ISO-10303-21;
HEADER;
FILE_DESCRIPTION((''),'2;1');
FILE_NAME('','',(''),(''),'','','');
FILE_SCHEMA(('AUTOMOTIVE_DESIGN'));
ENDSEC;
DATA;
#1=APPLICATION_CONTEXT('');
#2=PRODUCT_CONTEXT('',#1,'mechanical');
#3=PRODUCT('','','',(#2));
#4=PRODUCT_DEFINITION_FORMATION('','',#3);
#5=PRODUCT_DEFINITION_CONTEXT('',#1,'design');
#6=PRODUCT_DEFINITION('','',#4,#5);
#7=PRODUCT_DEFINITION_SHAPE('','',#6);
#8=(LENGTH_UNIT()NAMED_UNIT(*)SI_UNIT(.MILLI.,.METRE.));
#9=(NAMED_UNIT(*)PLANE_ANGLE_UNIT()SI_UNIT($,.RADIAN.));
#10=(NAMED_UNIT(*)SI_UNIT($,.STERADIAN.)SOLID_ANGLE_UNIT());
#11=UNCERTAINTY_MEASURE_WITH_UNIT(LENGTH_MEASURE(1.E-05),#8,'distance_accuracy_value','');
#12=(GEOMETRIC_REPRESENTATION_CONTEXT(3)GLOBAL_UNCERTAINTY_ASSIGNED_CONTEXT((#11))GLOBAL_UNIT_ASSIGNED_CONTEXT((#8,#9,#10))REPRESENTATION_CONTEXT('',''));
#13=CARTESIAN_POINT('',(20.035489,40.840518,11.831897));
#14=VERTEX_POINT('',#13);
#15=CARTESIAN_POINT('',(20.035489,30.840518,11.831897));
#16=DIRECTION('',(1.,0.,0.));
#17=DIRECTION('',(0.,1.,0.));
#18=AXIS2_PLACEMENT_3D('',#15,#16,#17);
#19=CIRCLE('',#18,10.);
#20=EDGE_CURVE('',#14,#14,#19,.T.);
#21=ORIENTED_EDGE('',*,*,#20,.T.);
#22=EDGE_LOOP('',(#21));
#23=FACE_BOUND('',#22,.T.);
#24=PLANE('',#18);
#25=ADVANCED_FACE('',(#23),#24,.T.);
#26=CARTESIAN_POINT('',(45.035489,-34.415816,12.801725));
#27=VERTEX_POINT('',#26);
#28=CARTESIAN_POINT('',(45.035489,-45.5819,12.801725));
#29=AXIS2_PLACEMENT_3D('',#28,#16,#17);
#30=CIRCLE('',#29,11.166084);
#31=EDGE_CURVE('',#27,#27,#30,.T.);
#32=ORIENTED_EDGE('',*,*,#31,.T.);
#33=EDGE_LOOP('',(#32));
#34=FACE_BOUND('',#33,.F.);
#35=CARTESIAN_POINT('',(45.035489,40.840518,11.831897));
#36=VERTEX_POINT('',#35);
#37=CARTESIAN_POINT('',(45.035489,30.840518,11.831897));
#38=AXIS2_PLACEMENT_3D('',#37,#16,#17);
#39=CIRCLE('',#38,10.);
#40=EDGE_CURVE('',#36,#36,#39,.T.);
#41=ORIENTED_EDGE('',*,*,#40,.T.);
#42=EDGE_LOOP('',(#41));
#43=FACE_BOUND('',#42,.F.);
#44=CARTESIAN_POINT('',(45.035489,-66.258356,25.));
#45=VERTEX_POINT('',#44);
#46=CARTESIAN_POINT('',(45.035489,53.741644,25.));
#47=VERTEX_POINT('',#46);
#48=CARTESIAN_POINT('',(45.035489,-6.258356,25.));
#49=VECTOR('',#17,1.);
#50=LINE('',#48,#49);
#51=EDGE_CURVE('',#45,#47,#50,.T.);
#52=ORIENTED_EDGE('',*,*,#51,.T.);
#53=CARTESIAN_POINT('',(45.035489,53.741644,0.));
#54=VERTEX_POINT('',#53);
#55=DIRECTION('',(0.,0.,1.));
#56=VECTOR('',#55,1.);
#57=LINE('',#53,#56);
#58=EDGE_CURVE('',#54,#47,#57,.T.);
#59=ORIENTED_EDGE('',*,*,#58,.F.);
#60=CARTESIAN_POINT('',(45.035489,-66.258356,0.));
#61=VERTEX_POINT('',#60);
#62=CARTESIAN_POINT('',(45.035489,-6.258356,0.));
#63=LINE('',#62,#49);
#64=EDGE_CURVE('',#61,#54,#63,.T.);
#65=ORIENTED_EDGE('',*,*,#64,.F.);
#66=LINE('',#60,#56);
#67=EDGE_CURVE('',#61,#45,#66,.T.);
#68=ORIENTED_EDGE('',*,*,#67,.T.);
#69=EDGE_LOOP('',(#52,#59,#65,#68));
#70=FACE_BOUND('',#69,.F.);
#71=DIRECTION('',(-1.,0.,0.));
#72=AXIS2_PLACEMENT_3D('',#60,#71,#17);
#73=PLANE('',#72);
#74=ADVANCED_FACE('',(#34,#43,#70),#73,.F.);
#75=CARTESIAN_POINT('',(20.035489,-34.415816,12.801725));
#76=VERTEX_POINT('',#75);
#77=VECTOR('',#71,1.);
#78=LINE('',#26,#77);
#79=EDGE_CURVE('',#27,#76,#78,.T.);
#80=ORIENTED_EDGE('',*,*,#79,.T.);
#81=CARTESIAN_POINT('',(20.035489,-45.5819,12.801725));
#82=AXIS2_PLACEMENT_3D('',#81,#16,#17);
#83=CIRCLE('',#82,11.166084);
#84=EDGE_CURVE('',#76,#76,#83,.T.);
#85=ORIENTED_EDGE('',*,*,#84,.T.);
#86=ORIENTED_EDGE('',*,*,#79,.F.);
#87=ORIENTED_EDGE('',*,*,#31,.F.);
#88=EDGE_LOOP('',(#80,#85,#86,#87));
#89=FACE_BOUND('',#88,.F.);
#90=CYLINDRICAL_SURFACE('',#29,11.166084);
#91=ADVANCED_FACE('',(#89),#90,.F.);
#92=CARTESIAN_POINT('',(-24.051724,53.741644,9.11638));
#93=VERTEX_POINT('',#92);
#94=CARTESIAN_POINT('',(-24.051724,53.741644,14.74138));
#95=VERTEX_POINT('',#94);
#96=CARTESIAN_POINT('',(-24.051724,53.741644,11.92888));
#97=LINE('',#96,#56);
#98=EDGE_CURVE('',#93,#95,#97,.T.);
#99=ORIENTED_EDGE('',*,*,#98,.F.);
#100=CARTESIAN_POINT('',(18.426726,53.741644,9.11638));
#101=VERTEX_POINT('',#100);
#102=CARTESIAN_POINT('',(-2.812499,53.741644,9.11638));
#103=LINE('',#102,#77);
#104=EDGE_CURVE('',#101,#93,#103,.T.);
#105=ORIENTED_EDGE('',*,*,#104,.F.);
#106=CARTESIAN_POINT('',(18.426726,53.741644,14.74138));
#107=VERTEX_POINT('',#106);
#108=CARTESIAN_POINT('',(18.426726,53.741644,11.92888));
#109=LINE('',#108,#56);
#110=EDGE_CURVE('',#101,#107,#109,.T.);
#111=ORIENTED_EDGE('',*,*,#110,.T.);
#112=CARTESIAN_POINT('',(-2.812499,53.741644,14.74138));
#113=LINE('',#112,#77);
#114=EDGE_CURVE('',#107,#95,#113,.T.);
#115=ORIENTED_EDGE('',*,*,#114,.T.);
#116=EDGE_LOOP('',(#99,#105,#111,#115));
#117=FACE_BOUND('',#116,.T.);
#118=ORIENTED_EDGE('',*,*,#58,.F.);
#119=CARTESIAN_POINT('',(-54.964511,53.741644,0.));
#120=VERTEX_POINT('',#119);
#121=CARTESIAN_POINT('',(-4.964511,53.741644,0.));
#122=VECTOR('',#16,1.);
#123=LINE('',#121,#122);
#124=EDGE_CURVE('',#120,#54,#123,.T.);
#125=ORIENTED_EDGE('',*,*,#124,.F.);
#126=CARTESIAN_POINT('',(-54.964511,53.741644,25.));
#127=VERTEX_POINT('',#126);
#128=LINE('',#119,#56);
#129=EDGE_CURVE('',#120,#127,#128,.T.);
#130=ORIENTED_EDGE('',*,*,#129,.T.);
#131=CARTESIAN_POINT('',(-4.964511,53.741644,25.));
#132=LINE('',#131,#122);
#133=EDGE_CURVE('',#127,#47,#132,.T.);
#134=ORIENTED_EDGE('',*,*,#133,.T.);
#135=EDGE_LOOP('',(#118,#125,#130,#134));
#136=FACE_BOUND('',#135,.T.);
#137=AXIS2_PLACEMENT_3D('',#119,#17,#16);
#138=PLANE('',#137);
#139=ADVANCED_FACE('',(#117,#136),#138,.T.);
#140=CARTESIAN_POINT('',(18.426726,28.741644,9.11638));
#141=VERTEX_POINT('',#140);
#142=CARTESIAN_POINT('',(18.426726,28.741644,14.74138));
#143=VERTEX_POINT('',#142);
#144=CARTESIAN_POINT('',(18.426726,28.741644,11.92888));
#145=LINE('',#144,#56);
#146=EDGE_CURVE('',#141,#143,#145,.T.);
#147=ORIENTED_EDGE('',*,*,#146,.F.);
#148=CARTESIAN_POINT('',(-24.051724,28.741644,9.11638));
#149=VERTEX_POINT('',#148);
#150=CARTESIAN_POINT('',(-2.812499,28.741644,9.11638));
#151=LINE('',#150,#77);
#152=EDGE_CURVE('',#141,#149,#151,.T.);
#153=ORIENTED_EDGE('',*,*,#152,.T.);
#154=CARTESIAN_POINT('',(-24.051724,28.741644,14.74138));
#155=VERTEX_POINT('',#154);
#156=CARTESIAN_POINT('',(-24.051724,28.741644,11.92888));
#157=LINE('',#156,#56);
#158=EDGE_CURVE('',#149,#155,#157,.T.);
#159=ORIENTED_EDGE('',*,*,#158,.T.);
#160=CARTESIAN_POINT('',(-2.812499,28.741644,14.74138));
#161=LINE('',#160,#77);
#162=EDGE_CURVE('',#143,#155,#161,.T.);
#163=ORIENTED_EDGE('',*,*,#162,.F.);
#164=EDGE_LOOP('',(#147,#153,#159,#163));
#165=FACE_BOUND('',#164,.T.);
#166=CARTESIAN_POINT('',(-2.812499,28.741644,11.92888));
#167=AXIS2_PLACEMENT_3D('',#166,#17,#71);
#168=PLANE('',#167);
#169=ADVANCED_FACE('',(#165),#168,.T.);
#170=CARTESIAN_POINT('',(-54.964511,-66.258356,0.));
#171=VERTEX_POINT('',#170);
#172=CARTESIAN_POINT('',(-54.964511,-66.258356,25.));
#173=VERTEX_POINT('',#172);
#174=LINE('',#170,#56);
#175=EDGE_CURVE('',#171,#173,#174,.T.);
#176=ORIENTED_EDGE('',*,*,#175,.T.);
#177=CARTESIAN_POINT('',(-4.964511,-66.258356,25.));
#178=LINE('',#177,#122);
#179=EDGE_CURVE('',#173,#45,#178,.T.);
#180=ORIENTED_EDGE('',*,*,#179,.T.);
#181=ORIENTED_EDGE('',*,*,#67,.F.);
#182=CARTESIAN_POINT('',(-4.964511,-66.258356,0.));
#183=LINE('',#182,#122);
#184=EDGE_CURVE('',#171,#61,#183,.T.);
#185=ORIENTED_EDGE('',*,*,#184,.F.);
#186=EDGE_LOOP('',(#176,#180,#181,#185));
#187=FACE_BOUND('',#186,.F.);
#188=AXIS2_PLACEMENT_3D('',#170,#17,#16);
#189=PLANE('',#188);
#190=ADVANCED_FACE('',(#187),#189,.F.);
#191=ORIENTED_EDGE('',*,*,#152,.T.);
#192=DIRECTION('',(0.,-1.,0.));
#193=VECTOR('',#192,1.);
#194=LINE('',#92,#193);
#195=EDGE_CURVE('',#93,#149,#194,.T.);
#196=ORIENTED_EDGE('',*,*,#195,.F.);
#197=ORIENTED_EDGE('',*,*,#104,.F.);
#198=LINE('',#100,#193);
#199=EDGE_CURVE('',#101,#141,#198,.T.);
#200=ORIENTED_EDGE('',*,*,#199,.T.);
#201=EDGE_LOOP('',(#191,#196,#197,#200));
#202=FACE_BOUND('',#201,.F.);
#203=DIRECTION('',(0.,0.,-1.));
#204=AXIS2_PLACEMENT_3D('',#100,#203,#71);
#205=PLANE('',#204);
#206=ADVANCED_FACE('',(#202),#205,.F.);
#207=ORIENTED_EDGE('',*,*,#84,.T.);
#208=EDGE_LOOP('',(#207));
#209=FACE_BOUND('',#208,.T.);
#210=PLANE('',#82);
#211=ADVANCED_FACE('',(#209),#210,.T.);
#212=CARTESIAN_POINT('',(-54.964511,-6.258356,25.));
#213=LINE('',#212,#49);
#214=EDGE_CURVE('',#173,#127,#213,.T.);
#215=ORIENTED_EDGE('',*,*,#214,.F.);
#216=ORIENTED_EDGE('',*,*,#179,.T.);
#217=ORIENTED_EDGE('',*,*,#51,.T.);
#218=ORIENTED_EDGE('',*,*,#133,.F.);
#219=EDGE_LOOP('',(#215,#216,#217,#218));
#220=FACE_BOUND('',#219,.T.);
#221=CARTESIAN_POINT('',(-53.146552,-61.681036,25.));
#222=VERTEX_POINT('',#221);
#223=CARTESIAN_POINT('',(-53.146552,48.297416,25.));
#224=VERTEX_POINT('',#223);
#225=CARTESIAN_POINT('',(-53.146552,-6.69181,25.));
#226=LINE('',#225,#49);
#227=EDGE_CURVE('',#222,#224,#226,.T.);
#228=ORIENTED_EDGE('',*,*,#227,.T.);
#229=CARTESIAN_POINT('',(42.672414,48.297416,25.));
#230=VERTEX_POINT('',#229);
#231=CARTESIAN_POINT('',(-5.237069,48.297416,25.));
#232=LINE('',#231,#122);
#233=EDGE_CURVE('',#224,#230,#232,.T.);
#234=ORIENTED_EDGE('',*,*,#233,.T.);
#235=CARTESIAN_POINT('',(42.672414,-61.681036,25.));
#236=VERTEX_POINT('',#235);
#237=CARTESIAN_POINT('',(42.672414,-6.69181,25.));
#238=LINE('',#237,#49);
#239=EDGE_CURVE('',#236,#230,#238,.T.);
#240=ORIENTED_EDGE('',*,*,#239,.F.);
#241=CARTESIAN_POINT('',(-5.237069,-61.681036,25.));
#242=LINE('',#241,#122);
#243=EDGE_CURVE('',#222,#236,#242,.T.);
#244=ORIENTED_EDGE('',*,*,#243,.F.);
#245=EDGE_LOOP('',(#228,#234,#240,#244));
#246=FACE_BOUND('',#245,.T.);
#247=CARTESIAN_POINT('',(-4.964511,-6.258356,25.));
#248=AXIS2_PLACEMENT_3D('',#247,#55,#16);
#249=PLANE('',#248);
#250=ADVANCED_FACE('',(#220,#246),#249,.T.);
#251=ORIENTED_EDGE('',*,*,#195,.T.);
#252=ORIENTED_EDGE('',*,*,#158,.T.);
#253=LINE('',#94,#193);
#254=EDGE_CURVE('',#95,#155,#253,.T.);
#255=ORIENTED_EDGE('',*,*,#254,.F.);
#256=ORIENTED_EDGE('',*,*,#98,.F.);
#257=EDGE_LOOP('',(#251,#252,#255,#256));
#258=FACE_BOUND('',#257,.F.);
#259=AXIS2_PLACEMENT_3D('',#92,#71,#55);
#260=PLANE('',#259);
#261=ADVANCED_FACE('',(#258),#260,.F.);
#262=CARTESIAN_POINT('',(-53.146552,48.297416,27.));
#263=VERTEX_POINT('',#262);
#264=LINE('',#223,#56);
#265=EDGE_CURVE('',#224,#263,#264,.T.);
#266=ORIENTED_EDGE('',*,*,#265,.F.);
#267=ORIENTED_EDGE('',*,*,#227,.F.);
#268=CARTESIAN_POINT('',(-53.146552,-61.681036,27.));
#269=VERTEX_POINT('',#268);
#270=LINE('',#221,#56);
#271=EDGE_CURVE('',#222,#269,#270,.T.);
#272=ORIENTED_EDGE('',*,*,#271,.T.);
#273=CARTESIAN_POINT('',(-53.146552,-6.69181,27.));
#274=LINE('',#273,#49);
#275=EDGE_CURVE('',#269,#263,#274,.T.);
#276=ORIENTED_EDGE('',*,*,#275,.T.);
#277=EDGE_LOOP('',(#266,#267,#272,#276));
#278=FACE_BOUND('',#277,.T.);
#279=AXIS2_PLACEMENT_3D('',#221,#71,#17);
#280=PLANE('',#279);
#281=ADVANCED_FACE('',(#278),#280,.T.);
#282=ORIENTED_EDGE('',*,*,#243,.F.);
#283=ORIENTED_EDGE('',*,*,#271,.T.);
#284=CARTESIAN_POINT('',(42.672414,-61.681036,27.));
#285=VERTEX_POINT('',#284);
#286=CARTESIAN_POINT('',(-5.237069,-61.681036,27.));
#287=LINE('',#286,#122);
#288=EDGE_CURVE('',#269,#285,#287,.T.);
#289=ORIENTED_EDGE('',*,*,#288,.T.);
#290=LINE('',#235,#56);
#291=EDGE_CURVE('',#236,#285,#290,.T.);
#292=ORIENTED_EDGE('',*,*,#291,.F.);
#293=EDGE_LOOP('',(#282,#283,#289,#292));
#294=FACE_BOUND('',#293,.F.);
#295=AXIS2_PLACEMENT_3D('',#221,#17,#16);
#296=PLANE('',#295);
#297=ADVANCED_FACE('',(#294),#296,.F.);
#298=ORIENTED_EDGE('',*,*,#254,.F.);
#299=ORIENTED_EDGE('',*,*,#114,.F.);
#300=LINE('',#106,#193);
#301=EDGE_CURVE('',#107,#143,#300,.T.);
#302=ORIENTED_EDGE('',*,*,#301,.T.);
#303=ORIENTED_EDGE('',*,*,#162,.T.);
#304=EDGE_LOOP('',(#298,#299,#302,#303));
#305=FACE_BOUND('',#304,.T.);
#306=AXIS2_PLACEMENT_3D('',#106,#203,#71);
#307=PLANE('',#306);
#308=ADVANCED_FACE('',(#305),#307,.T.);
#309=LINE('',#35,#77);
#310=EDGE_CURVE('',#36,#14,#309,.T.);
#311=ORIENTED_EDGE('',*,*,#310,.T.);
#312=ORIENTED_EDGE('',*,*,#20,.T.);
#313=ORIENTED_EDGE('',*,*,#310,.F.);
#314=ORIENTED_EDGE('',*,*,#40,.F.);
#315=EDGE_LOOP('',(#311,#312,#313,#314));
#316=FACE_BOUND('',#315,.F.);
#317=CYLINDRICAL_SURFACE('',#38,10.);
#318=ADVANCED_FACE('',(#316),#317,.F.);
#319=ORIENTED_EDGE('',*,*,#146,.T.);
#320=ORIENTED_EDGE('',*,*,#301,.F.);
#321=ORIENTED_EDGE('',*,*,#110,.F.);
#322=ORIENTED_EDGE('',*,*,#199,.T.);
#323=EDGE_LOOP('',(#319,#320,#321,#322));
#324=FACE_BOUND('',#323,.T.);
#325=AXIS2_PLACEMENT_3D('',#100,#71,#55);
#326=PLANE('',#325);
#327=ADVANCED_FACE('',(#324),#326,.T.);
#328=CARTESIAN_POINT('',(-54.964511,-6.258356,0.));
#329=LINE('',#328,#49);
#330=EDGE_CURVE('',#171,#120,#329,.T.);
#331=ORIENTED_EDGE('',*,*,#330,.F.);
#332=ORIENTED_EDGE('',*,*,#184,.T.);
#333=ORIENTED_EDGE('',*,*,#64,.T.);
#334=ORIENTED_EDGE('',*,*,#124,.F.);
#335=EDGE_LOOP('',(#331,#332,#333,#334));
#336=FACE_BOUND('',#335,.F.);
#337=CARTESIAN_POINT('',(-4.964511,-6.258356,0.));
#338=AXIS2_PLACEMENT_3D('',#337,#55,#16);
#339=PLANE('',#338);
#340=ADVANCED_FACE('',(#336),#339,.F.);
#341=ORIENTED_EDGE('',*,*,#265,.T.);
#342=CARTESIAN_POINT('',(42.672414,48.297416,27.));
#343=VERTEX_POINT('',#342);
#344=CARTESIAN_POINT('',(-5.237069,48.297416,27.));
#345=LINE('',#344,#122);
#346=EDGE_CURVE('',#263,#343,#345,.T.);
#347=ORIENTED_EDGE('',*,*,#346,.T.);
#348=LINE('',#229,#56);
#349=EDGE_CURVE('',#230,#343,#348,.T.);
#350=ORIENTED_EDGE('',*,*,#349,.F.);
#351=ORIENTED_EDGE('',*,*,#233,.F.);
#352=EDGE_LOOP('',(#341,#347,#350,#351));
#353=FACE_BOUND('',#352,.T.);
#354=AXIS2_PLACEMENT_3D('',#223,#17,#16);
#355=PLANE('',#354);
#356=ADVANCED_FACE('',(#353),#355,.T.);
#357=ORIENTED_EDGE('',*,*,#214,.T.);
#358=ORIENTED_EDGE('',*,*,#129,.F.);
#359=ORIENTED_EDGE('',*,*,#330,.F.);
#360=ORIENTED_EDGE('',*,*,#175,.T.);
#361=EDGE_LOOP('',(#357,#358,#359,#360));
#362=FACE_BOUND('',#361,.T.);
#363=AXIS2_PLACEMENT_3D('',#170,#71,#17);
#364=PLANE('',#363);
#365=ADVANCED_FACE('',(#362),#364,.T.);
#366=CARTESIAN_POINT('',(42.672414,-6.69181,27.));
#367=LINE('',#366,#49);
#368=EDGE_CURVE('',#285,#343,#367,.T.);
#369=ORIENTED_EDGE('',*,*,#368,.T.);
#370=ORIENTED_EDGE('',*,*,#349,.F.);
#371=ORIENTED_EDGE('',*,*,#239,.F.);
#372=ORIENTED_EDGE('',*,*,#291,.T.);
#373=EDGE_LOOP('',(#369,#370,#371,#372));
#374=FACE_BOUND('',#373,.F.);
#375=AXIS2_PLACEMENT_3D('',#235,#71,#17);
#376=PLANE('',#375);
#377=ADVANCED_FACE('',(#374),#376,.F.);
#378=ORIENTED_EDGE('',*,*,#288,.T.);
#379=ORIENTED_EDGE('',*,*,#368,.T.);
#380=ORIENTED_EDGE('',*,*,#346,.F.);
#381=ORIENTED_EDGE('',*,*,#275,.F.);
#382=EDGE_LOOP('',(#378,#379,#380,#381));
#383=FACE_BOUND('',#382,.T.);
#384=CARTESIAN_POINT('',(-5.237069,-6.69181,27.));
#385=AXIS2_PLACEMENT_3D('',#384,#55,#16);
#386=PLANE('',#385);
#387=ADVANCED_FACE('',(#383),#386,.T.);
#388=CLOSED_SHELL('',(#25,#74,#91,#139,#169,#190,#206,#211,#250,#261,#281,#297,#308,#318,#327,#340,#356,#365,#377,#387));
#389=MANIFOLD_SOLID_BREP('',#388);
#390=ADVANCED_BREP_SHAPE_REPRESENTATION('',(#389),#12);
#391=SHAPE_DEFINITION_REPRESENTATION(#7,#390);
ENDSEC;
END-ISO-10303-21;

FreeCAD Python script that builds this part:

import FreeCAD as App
import Part
import Sketcher


def add_polygon(sketch, points):
    """Adds a closed chain of lines whose ends are joined by coincident constraints."""
    first, n = sketch.GeometryCount, len(points)
    for a, b in zip(points, points[1:] + points[:1]):
        sketch.addGeometry(Part.LineSegment(App.Vector(*a, 0), App.Vector(*b, 0)), False)
    for i in range(n):
        sketch.addConstraint(Sketcher.Constraint("Coincident", first + i, 2, first + (i + 1) % n, 1))

doc = App.newDocument("Part")
body = doc.addObject("PartDesign::Body", "Body")

sketch1 = body.newObject("Sketcher::SketchObject", "Sketch")
sketch1.AttachmentSupport = (doc.getObject("XY_Plane"), [""])
sketch1.MapMode = "FlatFace"
add_polygon(sketch1, [(-55, 54), (-55, -66), (45, -66), (45, 54)])
sketch1.addConstraint([
    Sketcher.Constraint("Vertical", 0),
    Sketcher.Constraint("Horizontal", 1),
    Sketcher.Constraint("Vertical", 2),
    Sketcher.Constraint("Horizontal", 3),
    Sketcher.Constraint("DistanceX", 1, 1, 1, 2, 100.0),
    Sketcher.Constraint("DistanceY", 0, 2, 0, 1, 120.0),
    Sketcher.Constraint("DistanceX", 0, 2, -1, 1, 54.964511),
    Sketcher.Constraint("DistanceY", 0, 2, -1, 1, 66.258356),
])
pad1 = body.newObject("PartDesign::Pad", "Pad")
pad1.Profile = sketch1
pad1.Length = 25

sketch2 = body.newObject("Sketcher::SketchObject", "Sketch001")
sketch2.AttachmentSupport = (doc.getObject("YZ_Plane"), [""])
sketch2.MapMode = "FlatFace"
sketch2.AttachmentOffset = App.Placement(App.Vector(0, 0, 45.035489), App.Rotation())
sketch2.addGeometry(Part.Circle(App.Vector(-46, 13, 0), App.Vector(0, 0, 1), 11), False)
sketch2.addConstraint([
    Sketcher.Constraint("Diameter", 0, 22.332168),
    Sketcher.Constraint("DistanceX", 0, 3, -1, 1, 45.5819),
    Sketcher.Constraint("DistanceY", -1, 1, 0, 3, 12.801725),
])
pocket1 = body.newObject("PartDesign::Pocket", "Pocket")
pocket1.Profile = sketch2
pocket1.Length = 25

sketch3 = body.newObject("Sketcher::SketchObject", "Sketch002")
sketch3.AttachmentSupport = (doc.getObject("YZ_Plane"), [""])
sketch3.MapMode = "FlatFace"
sketch3.AttachmentOffset = App.Placement(App.Vector(0, 0, 45.035489), App.Rotation())
sketch3.addGeometry(Part.Circle(App.Vector(31, 12, 0), App.Vector(0, 0, 1), 10), False)
sketch3.addConstraint([
    Sketcher.Constraint("Diameter", 0, 20.0),
    Sketcher.Constraint("DistanceX", -1, 1, 0, 3, 30.840518),
    Sketcher.Constraint("DistanceY", -1, 1, 0, 3, 11.831897),
])
pocket2 = body.newObject("PartDesign::Pocket", "Pocket001")
pocket2.Profile = sketch3
pocket2.Length = 25

sketch4 = body.newObject("Sketcher::SketchObject", "Sketch003")
sketch4.AttachmentSupport = (doc.getObject("XY_Plane"), [""])
sketch4.MapMode = "FlatFace"
sketch4.AttachmentOffset = App.Placement(App.Vector(0, 0, 25), App.Rotation())
add_polygon(sketch4, [(-53, 48), (-53, -62), (43, -62), (43, 48)])
sketch4.addConstraint([
    Sketcher.Constraint("Vertical", 0),
    Sketcher.Constraint("Horizontal", 1),
    Sketcher.Constraint("Vertical", 2),
    Sketcher.Constraint("Horizontal", 3),
    Sketcher.Constraint("DistanceX", 1, 1, 1, 2, 95.818966),
    Sketcher.Constraint("DistanceY", 0, 2, 0, 1, 109.978452),
    Sketcher.Constraint("DistanceX", 0, 2, -1, 1, 53.146552),
    Sketcher.Constraint("DistanceY", 0, 2, -1, 1, 61.681036),
])
pad2 = body.newObject("PartDesign::Pad", "Pad001")
pad2.Profile = sketch4
pad2.Length = 2

sketch5 = body.newObject("Sketcher::SketchObject", "Sketch004")
sketch5.AttachmentSupport = (doc.getObject("XZ_Plane"), [""])
sketch5.MapMode = "FlatFace"
sketch5.AttachmentOffset = App.Placement(App.Vector(0, 0, -53.741644), App.Rotation())
add_polygon(sketch5, [(18, 15), (18, 9), (-24, 9), (-24, 15)])
sketch5.addConstraint([
    Sketcher.Constraint("Vertical", 0),
    Sketcher.Constraint("Horizontal", 1),
    Sketcher.Constraint("Vertical", 2),
    Sketcher.Constraint("Horizontal", 3),
    Sketcher.Constraint("DistanceY", 0, 2, 0, 1, 5.625),
    Sketcher.Constraint("DistanceX", 1, 2, 1, 1, 42.47845),
    Sketcher.Constraint("DistanceY", -1, 1, 0, 2, 9.11638),
    Sketcher.Constraint("DistanceX", -1, 1, 0, 2, 18.426726),
])
pocket3 = body.newObject("PartDesign::Pocket", "Pocket002")
pocket3.Profile = sketch5
pocket3.Length = 25
pocket3.Reversed = True

doc.recompute()
